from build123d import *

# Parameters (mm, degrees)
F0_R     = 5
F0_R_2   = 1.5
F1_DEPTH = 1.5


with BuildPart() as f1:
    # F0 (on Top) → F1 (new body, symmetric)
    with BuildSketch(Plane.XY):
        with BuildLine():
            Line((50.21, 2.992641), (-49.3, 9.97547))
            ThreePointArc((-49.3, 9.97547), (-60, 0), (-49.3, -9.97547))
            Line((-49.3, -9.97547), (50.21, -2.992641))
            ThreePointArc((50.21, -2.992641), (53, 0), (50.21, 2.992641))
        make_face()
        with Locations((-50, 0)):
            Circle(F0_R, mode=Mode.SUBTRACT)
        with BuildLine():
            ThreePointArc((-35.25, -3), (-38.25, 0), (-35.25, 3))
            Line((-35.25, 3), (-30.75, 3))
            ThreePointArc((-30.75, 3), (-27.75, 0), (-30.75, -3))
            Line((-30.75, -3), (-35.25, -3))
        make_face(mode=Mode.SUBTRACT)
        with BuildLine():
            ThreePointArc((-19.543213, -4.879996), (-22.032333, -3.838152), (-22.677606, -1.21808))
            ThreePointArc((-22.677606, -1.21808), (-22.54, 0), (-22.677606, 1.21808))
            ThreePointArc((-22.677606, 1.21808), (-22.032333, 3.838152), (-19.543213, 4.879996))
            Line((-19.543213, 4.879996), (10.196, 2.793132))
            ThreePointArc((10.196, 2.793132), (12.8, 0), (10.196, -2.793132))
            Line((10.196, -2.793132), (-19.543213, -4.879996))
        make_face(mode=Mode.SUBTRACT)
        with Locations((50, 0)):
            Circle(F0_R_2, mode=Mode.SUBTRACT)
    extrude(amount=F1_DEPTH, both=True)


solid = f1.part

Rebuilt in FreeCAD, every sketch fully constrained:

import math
import FreeCAD as App
import Part
import Sketcher

doc = App.newDocument("Part")
params = doc.addObject("Spreadsheet::Sheet", "Params")
for row, (alias, value) in enumerate([
    ("sketch1_diameter", "10 mm"),
    ("sketch1_diameter2", "3 mm"),
    ("sketch1_radius", "10 mm"),
    ("sketch1_radius2", "3 mm"),
    ("sketch1_radius3", "2.8 mm"),
    ("pad1_length", "3 mm"),
], start=1):
    params.set(f"A{row}", alias)
    params.set(f"B{row}", "=" + value)
    params.setAlias(f"B{row}", alias)

body = doc.addObject("PartDesign::Body", "Body")

# Sketch on XY plane
sketch1 = body.newObject("Sketcher::SketchObject", "Sketch")
sketch1.AttachmentSupport = (doc.getObject("XY_Plane"), [""])
sketch1.MapMode = "FlatFace"
sketch1.addGeometry(Part.LineSegment(App.Vector(50.21, 2.992641, 0), App.Vector(-49.3, 9.97547, 0)), False)
sketch1.addGeometry(Part.ArcOfCircle(Part.Circle(App.Vector(-50, 0, 0), App.Vector(0, 0, 1), 10), math.radians(85.986013), math.radians(274.013987)), False)
sketch1.addGeometry(Part.LineSegment(App.Vector(-49.3, -9.97547, 0), App.Vector(50.21, -2.992641, 0)), False)
sketch1.addGeometry(Part.ArcOfCircle(Part.Circle(App.Vector(50, 0, 0), App.Vector(0, 0, 1), 3), math.radians(-85.986012), math.radians(85.986012)), False)
sketch1.addGeometry(Part.Circle(App.Vector(-50, 0, 0), App.Vector(0, 0, 1), 5), False)
sketch1.addGeometry(Part.LineSegment(App.Vector(-30.75, -3, 0), App.Vector(-35.25, -3, 0)), False)
sketch1.addGeometry(Part.ArcOfCircle(Part.Circle(App.Vector(-35.25, 0, 0), App.Vector(0, 0, 1), 3), math.radians(90), math.radians(270)), False)
sketch1.addGeometry(Part.LineSegment(App.Vector(-35.25, 3, 0), App.Vector(-30.75, 3, 0)), False)
sketch1.addGeometry(Part.ArcOfCircle(Part.Circle(App.Vector(-30.75, 0, 0), App.Vector(0, 0, 1), 3), math.radians(-90), math.radians(90)), False)
sketch1.addGeometry(Part.LineSegment(App.Vector(10.196, -2.793132, 0), App.Vector(-19.543213, -4.879996, 0)), False)
sketch1.addGeometry(Part.ArcOfCircle(Part.Circle(App.Vector(-19.753212, -1.887353, 0), App.Vector(0, 0, 1), 3.000002), math.radians(167.109351), math.radians(274.01396)), False)
sketch1.addGeometry(Part.ArcOfCircle(Part.Circle(App.Vector(-27.999988, 0, 0), App.Vector(0, 0, 1), 5.459988), math.radians(-12.890709), math.radians(12.890709)), False)
sketch1.addGeometry(Part.ArcOfCircle(Part.Circle(App.Vector(-19.753212, 1.887353, 0), App.Vector(0, 0, 1), 3.000002), math.radians(85.98604), math.radians(192.890649)), False)
sketch1.addGeometry(Part.LineSegment(App.Vector(-19.543213, 4.879996, 0), App.Vector(10.196, 2.793132, 0)), False)
sketch1.addGeometry(Part.ArcOfCircle(Part.Circle(App.Vector(10, 0, 0), App.Vector(0, 0, 1), 2.8), math.radians(-85.986004), math.radians(85.986004)), False)
sketch1.addGeometry(Part.Circle(App.Vector(50, 0, 0), App.Vector(0, 0, 1), 1.5), False)
sketch1.addConstraint(Sketcher.Constraint("Tangent", 0, 2, 1, 1))
sketch1.addConstraint(Sketcher.Constraint("Tangent", 1, 2, 2, 1))
sketch1.addConstraint(Sketcher.Constraint("Tangent", 2, 2, 3, 1))
sketch1.addConstraint(Sketcher.Constraint("Tangent", 3, 2, 0, 1))
sketch1.addConstraint(Sketcher.Constraint("Tangent", 5, 2, 6, 2))
sketch1.addConstraint(Sketcher.Constraint("Tangent", 6, 1, 7, 1))
sketch1.addConstraint(Sketcher.Constraint("Tangent", 7, 2, 8, 2))
sketch1.addConstraint(Sketcher.Constraint("Tangent", 8, 1, 5, 1))
sketch1.addConstraint(Sketcher.Constraint("Tangent", 9, 2, 10, 2))
sketch1.addConstraint(Sketcher.Constraint("Tangent", 10, 1, 11, 1))
sketch1.addConstraint(Sketcher.Constraint("Tangent", 11, 2, 12, 2))
sketch1.addConstraint(Sketcher.Constraint("Tangent", 12, 1, 13, 1))
sketch1.addConstraint(Sketcher.Constraint("Tangent", 13, 2, 14, 2))
sketch1.addConstraint(Sketcher.Constraint("Tangent", 14, 1, 9, 1))
sketch1.addConstraint(Sketcher.Constraint("Horizontal", 5))
sketch1.addConstraint(Sketcher.Constraint("Horizontal", 7))
sketch1.addConstraint(Sketcher.Constraint("Coincident", 4, 3, 1, 3))
sketch1.addConstraint(Sketcher.Constraint("Coincident", 15, 3, 3, 3))
sketch1.addConstraint(Sketcher.Constraint("Equal", 3, 6))
sketch1.addConstraint(Sketcher.Constraint("Equal", 8, 10))
sketch1.addConstraint(Sketcher.Constraint("Equal", 10, 12))
sketch1.addConstraint(Sketcher.Constraint("Symmetric", 1, 3, 3, 3, -1, 1))
sketch1.addConstraint(Sketcher.Constraint("Symmetric", 10, 3, 12, 3, -1))
sketch1.addConstraint(Sketcher.Constraint("PointOnObject", 1, 3, -1))
sketch1.addConstraint(Sketcher.Constraint("PointOnObject", 6, 3, -1))
sketch1.addConstraint(Sketcher.Constraint("PointOnObject", 14, 3, -1))
sketch1.addConstraint(Sketcher.Constraint("Parallel", 2, 9))
sketch1.addConstraint(Sketcher.Constraint("Diameter", 4, 10.0))
sketch1.addConstraint(Sketcher.Constraint("Diameter", 15, 3.0))
sketch1.addConstraint(Sketcher.Constraint("Radius", 1, 10.0))
sketch1.addConstraint(Sketcher.Constraint("Radius", 3, 3.0))
sketch1.addConstraint(Sketcher.Constraint("Radius", 14, 2.8))
sketch1.addConstraint(Sketcher.Constraint("DistanceX", 5, 2, 5, 1, 4.5))
sketch1.addConstraint(Sketcher.Constraint("DistanceX", 1, 3, -1, 1, 50.0))
sketch1.addConstraint(Sketcher.Constraint("DistanceX", -1, 1, 14, 3, 10.0))
sketch1.addConstraint(Sketcher.Constraint("DistanceX", 6, 3, -1, 1, 35.25))
sketch1.addConstraint(Sketcher.Constraint("Radius", 11, 5.459988))
sketch1.addConstraint(Sketcher.Constraint("DistanceX", 10, 3, -1, 1, 19.753212))
sketch1.setExpression("Constraints[27]", "Params.sketch1_diameter")
sketch1.setExpression("Constraints[28]", "Params.sketch1_diameter2")
sketch1.setExpression("Constraints[29]", "Params.sketch1_radius")
sketch1.setExpression("Constraints[30]", "Params.sketch1_radius2")
sketch1.setExpression("Constraints[31]", "Params.sketch1_radius3")
pad1 = body.newObject("PartDesign::Pad", "Pad")
pad1.Profile = sketch1
pad1.setExpression("Length", "Params.pad1_length")
pad1.Midplane = True

doc.recompute()
